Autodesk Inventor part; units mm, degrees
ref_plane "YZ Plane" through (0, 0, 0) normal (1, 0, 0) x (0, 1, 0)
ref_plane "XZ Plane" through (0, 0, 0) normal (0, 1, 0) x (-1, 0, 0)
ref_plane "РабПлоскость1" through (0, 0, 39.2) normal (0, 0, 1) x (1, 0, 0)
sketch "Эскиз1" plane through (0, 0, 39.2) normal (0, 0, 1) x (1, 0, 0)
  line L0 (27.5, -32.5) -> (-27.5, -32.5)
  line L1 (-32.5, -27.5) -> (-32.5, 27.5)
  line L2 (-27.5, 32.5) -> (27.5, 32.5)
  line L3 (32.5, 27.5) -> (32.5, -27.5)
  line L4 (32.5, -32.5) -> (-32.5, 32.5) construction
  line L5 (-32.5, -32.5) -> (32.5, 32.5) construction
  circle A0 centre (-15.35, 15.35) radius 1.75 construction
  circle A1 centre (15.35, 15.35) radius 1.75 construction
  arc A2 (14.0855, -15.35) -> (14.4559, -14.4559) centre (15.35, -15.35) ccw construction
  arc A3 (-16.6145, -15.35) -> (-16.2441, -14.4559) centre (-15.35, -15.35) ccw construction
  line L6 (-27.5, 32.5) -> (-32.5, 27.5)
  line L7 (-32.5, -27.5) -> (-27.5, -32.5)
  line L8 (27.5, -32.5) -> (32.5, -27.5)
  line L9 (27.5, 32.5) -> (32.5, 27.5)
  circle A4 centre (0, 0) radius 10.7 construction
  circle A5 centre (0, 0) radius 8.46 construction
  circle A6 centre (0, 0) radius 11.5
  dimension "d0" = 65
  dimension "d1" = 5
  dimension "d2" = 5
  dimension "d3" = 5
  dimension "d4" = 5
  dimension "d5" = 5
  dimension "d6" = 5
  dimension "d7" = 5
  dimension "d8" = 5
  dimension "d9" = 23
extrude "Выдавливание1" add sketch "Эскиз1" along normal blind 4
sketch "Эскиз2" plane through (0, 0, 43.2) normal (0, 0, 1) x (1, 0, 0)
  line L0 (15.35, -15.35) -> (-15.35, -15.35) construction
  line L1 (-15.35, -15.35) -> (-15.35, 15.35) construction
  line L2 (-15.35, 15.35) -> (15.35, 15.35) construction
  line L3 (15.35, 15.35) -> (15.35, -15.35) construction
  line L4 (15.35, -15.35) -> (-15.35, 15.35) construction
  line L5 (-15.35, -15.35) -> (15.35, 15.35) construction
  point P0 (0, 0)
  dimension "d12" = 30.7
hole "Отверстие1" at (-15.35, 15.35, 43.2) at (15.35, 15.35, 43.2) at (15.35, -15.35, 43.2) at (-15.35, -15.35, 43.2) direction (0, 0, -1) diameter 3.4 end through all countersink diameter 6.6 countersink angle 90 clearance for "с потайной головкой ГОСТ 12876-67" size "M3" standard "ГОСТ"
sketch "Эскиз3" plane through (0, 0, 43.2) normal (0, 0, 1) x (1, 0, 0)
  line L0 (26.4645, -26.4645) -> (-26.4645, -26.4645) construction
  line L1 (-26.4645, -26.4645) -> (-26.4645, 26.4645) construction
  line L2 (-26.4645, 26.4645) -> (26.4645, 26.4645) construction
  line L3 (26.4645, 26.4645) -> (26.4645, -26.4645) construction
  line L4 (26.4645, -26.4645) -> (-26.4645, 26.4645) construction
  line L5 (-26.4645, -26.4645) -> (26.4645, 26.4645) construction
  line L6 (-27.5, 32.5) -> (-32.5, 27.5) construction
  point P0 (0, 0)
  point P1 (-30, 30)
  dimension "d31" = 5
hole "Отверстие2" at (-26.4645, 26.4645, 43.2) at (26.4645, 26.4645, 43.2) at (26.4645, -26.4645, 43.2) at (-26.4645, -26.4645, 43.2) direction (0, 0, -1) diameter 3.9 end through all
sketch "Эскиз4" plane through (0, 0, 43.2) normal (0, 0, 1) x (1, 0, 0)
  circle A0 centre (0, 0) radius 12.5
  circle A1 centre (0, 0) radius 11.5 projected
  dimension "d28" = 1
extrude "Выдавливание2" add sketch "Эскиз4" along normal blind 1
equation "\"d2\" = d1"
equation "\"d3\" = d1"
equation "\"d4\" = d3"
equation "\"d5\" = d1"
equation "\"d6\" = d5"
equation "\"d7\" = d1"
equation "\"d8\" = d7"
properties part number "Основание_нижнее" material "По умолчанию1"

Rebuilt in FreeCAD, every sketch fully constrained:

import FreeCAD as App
import Part
import Sketcher
from FreeCAD import Vector


def add_polygon(sketch, points):
    """Adds a closed chain of lines whose ends are joined by coincident constraints."""
    first, n = sketch.GeometryCount, len(points)
    for a, b in zip(points, points[1:] + points[:1]):
        sketch.addGeometry(Part.LineSegment(App.Vector(*a, 0), App.Vector(*b, 0)), False)
    for i in range(n):
        sketch.addConstraint(Sketcher.Constraint("Coincident", first + i, 2, first + (i + 1) % n, 1))

doc = App.newDocument("Part")
params = doc.addObject("Spreadsheet::Sheet", "Params")
for row, (alias, value) in enumerate([
    ("sketch1_diameter", "23 mm"),
    ("pad1_length", "4 mm"),
    ("sketch2_diameter", "3.4 mm"),
    ("hole_diameter", "3.4 mm"),
    ("hole_csink_diameter", "6.6 mm"),
    ("sketch3_diameter", "3.9 mm"),
    ("hole2_diameter", "3.9 mm"),
    ("sketch4_diameter", "25 mm"),
    ("sketch4_diameter2", "23 mm"),
    ("pad2_length", "1 mm"),
], start=1):
    params.set(f"A{row}", alias)
    params.set(f"B{row}", "=" + value)
    params.setAlias(f"B{row}", alias)

body = doc.addObject("PartDesign::Body", "Body")

sketch1 = doc.addObject("Sketcher::SketchObject", "Sketch")
body.addObject(sketch1)
sketch1.AttachmentSupport = (doc.XY_Plane, [""])
sketch1.MapMode = "FlatFace"
sketch1.AttachmentOffset = App.Placement(Vector(0, 0, 39.2), App.Rotation())
add_polygon(sketch1, [(-28, -32), (28, -32), (32, -28), (32, 28), (28, 32), (-28, 32), (-32, 28), (-32, -28)])
sketch1.addGeometry(Part.Circle(Vector(0, 0, 0), Vector(0, 0, 1), 12), False)
sketch1.addConstraint([
    Sketcher.Constraint("Horizontal", 0),
    Sketcher.Constraint("Vertical", 2),
    Sketcher.Constraint("Horizontal", 4),
    Sketcher.Constraint("Vertical", 6),
    Sketcher.Constraint("Coincident", 8, 3, -1, 1),
    Sketcher.Constraint("Symmetric", 0, 2, 4, 2, -1, 1),
    Sketcher.Constraint("Symmetric", 1, 2, 5, 2, -1, 1),
    Sketcher.Constraint("Perpendicular", 1, 3),
    Sketcher.Constraint("Perpendicular", 5, 7),
    Sketcher.Constraint("Horizontal", 2, 2, 5, 2),
    Sketcher.Constraint("Horizontal", 1, 2, 6, 2),
    Sketcher.Constraint("Vertical", 0, 2, 3, 2),
    Sketcher.Constraint("Equal", 4, 2),
    Sketcher.Constraint("Diameter", 8, 23.0),
    Sketcher.Constraint("DistanceX", 0, 2, 1, 2, 5.0),
    Sketcher.Constraint("DistanceY", 0, 2, 3, 2, 65.0),
])
sketch1.setExpression("Constraints[21]", "Params.sketch1_diameter")
pad1 = doc.addObject("PartDesign::Pad", "Pad")
body.addObject(pad1)
pad1.Profile = sketch1
pad1.setExpression("Length", "Params.pad1_length")

sketch2 = doc.addObject("Sketcher::SketchObject", "Sketch001")
body.addObject(sketch2)
sketch2.AttachmentSupport = (doc.XY_Plane, [""])
sketch2.MapMode = "FlatFace"
sketch2.AttachmentOffset = App.Placement(Vector(0, 0, 43.2), App.Rotation())
sketch2.addGeometry([
    Part.Circle(Vector(-15.3, 15.3, 0), Vector(0, 0, 1), 1.7),
    Part.Circle(Vector(15.3, 15.3, 0), Vector(0, 0, 1), 1.7),
    Part.Circle(Vector(15.3, -15.3, 0), Vector(0, 0, 1), 1.7),
    Part.Circle(Vector(-15.3, -15.3, 0), Vector(0, 0, 1), 1.7),
], False)
sketch2.addConstraint([
    Sketcher.Constraint("Equal", 0, 1),
    Sketcher.Constraint("Equal", 1, 2),
    Sketcher.Constraint("Equal", 2, 3),
    Sketcher.Constraint("Symmetric", 0, 3, 2, 3, -1, 1),
    Sketcher.Constraint("Symmetric", 1, 3, 3, 3, -1, 1),
    Sketcher.Constraint("Symmetric", 0, 3, 1, 3, -2),
    Sketcher.Constraint("Diameter", 0, 3.4),
    Sketcher.Constraint("DistanceX", 0, 3, 1, 3, 30.7),
    Sketcher.Constraint("DistanceY", 2, 3, 1, 3, 30.7),
])
sketch2.setExpression("Constraints[6]", "Params.sketch2_diameter")
doc.recompute()
hole = doc.addObject("PartDesign::Hole", "Hole")
body.addObject(hole)
hole.Profile = sketch2
hole.ThreadType = "None"
hole.setExpression("Diameter", "Params.hole_diameter")
hole.DepthType = "ThroughAll"
hole.HoleCutType = "Countersink"
hole.setExpression("HoleCutDiameter", "Params.hole_csink_diameter")
hole.HoleCutCountersinkAngle = 90

sketch3 = doc.addObject("Sketcher::SketchObject", "Sketch002")
body.addObject(sketch3)
sketch3.AttachmentSupport = (doc.XY_Plane, [""])
sketch3.MapMode = "FlatFace"
sketch3.AttachmentOffset = App.Placement(Vector(0, 0, 43.2), App.Rotation())
sketch3.addGeometry([
    Part.Circle(Vector(-26.5, 26.5, 0), Vector(0, 0, 1), 1.9),
    Part.Circle(Vector(26.5, 26.5, 0), Vector(0, 0, 1), 1.9),
    Part.Circle(Vector(26.5, -26.5, 0), Vector(0, 0, 1), 1.9),
    Part.Circle(Vector(-26.5, -26.5, 0), Vector(0, 0, 1), 1.9),
], False)
sketch3.addConstraint([
    Sketcher.Constraint("Equal", 0, 1),
    Sketcher.Constraint("Equal", 1, 2),
    Sketcher.Constraint("Equal", 2, 3),
    Sketcher.Constraint("Symmetric", 0, 3, 2, 3, -1, 1),
    Sketcher.Constraint("Symmetric", 1, 3, 3, 3, -1, 1),
    Sketcher.Constraint("Symmetric", 0, 3, 1, 3, -2),
    Sketcher.Constraint("Diameter", 0, 3.9),
    Sketcher.Constraint("DistanceX", 0, 3, 1, 3, 52.929),
    Sketcher.Constraint("DistanceY", 2, 3, 1, 3, 52.929),
])
sketch3.setExpression("Constraints[6]", "Params.sketch3_diameter")
doc.recompute()
hole2 = doc.addObject("PartDesign::Hole", "Hole001")
body.addObject(hole2)
hole2.Profile = sketch3
hole2.ThreadType = "None"
hole2.setExpression("Diameter", "Params.hole2_diameter")
hole2.DepthType = "ThroughAll"

sketch4 = doc.addObject("Sketcher::SketchObject", "Sketch003")
body.addObject(sketch4)
sketch4.AttachmentSupport = (doc.XY_Plane, [""])
sketch4.MapMode = "FlatFace"
sketch4.AttachmentOffset = App.Placement(Vector(0, 0, 43.2), App.Rotation())
sketch4.addGeometry([
    Part.Circle(Vector(0, 0, 0), Vector(0, 0, 1), 12),
    Part.Circle(Vector(0, 0, 0), Vector(0, 0, 1), 12),
], False)
sketch4.addConstraint([
    Sketcher.Constraint("Coincident", 0, 3, -1, 1),
    Sketcher.Constraint("Coincident", 1, 3, -1, 1),
    Sketcher.Constraint("Diameter", 0, 25.0),
    Sketcher.Constraint("Diameter", 1, 23.0),
])
sketch4.setExpression("Constraints[2]", "Params.sketch4_diameter")
sketch4.setExpression("Constraints[3]", "Params.sketch4_diameter2")
pad2 = doc.addObject("PartDesign::Pad", "Pad001")
body.addObject(pad2)
pad2.Profile = sketch4
pad2.setExpression("Length", "Params.pad2_length")

doc.recompute()
